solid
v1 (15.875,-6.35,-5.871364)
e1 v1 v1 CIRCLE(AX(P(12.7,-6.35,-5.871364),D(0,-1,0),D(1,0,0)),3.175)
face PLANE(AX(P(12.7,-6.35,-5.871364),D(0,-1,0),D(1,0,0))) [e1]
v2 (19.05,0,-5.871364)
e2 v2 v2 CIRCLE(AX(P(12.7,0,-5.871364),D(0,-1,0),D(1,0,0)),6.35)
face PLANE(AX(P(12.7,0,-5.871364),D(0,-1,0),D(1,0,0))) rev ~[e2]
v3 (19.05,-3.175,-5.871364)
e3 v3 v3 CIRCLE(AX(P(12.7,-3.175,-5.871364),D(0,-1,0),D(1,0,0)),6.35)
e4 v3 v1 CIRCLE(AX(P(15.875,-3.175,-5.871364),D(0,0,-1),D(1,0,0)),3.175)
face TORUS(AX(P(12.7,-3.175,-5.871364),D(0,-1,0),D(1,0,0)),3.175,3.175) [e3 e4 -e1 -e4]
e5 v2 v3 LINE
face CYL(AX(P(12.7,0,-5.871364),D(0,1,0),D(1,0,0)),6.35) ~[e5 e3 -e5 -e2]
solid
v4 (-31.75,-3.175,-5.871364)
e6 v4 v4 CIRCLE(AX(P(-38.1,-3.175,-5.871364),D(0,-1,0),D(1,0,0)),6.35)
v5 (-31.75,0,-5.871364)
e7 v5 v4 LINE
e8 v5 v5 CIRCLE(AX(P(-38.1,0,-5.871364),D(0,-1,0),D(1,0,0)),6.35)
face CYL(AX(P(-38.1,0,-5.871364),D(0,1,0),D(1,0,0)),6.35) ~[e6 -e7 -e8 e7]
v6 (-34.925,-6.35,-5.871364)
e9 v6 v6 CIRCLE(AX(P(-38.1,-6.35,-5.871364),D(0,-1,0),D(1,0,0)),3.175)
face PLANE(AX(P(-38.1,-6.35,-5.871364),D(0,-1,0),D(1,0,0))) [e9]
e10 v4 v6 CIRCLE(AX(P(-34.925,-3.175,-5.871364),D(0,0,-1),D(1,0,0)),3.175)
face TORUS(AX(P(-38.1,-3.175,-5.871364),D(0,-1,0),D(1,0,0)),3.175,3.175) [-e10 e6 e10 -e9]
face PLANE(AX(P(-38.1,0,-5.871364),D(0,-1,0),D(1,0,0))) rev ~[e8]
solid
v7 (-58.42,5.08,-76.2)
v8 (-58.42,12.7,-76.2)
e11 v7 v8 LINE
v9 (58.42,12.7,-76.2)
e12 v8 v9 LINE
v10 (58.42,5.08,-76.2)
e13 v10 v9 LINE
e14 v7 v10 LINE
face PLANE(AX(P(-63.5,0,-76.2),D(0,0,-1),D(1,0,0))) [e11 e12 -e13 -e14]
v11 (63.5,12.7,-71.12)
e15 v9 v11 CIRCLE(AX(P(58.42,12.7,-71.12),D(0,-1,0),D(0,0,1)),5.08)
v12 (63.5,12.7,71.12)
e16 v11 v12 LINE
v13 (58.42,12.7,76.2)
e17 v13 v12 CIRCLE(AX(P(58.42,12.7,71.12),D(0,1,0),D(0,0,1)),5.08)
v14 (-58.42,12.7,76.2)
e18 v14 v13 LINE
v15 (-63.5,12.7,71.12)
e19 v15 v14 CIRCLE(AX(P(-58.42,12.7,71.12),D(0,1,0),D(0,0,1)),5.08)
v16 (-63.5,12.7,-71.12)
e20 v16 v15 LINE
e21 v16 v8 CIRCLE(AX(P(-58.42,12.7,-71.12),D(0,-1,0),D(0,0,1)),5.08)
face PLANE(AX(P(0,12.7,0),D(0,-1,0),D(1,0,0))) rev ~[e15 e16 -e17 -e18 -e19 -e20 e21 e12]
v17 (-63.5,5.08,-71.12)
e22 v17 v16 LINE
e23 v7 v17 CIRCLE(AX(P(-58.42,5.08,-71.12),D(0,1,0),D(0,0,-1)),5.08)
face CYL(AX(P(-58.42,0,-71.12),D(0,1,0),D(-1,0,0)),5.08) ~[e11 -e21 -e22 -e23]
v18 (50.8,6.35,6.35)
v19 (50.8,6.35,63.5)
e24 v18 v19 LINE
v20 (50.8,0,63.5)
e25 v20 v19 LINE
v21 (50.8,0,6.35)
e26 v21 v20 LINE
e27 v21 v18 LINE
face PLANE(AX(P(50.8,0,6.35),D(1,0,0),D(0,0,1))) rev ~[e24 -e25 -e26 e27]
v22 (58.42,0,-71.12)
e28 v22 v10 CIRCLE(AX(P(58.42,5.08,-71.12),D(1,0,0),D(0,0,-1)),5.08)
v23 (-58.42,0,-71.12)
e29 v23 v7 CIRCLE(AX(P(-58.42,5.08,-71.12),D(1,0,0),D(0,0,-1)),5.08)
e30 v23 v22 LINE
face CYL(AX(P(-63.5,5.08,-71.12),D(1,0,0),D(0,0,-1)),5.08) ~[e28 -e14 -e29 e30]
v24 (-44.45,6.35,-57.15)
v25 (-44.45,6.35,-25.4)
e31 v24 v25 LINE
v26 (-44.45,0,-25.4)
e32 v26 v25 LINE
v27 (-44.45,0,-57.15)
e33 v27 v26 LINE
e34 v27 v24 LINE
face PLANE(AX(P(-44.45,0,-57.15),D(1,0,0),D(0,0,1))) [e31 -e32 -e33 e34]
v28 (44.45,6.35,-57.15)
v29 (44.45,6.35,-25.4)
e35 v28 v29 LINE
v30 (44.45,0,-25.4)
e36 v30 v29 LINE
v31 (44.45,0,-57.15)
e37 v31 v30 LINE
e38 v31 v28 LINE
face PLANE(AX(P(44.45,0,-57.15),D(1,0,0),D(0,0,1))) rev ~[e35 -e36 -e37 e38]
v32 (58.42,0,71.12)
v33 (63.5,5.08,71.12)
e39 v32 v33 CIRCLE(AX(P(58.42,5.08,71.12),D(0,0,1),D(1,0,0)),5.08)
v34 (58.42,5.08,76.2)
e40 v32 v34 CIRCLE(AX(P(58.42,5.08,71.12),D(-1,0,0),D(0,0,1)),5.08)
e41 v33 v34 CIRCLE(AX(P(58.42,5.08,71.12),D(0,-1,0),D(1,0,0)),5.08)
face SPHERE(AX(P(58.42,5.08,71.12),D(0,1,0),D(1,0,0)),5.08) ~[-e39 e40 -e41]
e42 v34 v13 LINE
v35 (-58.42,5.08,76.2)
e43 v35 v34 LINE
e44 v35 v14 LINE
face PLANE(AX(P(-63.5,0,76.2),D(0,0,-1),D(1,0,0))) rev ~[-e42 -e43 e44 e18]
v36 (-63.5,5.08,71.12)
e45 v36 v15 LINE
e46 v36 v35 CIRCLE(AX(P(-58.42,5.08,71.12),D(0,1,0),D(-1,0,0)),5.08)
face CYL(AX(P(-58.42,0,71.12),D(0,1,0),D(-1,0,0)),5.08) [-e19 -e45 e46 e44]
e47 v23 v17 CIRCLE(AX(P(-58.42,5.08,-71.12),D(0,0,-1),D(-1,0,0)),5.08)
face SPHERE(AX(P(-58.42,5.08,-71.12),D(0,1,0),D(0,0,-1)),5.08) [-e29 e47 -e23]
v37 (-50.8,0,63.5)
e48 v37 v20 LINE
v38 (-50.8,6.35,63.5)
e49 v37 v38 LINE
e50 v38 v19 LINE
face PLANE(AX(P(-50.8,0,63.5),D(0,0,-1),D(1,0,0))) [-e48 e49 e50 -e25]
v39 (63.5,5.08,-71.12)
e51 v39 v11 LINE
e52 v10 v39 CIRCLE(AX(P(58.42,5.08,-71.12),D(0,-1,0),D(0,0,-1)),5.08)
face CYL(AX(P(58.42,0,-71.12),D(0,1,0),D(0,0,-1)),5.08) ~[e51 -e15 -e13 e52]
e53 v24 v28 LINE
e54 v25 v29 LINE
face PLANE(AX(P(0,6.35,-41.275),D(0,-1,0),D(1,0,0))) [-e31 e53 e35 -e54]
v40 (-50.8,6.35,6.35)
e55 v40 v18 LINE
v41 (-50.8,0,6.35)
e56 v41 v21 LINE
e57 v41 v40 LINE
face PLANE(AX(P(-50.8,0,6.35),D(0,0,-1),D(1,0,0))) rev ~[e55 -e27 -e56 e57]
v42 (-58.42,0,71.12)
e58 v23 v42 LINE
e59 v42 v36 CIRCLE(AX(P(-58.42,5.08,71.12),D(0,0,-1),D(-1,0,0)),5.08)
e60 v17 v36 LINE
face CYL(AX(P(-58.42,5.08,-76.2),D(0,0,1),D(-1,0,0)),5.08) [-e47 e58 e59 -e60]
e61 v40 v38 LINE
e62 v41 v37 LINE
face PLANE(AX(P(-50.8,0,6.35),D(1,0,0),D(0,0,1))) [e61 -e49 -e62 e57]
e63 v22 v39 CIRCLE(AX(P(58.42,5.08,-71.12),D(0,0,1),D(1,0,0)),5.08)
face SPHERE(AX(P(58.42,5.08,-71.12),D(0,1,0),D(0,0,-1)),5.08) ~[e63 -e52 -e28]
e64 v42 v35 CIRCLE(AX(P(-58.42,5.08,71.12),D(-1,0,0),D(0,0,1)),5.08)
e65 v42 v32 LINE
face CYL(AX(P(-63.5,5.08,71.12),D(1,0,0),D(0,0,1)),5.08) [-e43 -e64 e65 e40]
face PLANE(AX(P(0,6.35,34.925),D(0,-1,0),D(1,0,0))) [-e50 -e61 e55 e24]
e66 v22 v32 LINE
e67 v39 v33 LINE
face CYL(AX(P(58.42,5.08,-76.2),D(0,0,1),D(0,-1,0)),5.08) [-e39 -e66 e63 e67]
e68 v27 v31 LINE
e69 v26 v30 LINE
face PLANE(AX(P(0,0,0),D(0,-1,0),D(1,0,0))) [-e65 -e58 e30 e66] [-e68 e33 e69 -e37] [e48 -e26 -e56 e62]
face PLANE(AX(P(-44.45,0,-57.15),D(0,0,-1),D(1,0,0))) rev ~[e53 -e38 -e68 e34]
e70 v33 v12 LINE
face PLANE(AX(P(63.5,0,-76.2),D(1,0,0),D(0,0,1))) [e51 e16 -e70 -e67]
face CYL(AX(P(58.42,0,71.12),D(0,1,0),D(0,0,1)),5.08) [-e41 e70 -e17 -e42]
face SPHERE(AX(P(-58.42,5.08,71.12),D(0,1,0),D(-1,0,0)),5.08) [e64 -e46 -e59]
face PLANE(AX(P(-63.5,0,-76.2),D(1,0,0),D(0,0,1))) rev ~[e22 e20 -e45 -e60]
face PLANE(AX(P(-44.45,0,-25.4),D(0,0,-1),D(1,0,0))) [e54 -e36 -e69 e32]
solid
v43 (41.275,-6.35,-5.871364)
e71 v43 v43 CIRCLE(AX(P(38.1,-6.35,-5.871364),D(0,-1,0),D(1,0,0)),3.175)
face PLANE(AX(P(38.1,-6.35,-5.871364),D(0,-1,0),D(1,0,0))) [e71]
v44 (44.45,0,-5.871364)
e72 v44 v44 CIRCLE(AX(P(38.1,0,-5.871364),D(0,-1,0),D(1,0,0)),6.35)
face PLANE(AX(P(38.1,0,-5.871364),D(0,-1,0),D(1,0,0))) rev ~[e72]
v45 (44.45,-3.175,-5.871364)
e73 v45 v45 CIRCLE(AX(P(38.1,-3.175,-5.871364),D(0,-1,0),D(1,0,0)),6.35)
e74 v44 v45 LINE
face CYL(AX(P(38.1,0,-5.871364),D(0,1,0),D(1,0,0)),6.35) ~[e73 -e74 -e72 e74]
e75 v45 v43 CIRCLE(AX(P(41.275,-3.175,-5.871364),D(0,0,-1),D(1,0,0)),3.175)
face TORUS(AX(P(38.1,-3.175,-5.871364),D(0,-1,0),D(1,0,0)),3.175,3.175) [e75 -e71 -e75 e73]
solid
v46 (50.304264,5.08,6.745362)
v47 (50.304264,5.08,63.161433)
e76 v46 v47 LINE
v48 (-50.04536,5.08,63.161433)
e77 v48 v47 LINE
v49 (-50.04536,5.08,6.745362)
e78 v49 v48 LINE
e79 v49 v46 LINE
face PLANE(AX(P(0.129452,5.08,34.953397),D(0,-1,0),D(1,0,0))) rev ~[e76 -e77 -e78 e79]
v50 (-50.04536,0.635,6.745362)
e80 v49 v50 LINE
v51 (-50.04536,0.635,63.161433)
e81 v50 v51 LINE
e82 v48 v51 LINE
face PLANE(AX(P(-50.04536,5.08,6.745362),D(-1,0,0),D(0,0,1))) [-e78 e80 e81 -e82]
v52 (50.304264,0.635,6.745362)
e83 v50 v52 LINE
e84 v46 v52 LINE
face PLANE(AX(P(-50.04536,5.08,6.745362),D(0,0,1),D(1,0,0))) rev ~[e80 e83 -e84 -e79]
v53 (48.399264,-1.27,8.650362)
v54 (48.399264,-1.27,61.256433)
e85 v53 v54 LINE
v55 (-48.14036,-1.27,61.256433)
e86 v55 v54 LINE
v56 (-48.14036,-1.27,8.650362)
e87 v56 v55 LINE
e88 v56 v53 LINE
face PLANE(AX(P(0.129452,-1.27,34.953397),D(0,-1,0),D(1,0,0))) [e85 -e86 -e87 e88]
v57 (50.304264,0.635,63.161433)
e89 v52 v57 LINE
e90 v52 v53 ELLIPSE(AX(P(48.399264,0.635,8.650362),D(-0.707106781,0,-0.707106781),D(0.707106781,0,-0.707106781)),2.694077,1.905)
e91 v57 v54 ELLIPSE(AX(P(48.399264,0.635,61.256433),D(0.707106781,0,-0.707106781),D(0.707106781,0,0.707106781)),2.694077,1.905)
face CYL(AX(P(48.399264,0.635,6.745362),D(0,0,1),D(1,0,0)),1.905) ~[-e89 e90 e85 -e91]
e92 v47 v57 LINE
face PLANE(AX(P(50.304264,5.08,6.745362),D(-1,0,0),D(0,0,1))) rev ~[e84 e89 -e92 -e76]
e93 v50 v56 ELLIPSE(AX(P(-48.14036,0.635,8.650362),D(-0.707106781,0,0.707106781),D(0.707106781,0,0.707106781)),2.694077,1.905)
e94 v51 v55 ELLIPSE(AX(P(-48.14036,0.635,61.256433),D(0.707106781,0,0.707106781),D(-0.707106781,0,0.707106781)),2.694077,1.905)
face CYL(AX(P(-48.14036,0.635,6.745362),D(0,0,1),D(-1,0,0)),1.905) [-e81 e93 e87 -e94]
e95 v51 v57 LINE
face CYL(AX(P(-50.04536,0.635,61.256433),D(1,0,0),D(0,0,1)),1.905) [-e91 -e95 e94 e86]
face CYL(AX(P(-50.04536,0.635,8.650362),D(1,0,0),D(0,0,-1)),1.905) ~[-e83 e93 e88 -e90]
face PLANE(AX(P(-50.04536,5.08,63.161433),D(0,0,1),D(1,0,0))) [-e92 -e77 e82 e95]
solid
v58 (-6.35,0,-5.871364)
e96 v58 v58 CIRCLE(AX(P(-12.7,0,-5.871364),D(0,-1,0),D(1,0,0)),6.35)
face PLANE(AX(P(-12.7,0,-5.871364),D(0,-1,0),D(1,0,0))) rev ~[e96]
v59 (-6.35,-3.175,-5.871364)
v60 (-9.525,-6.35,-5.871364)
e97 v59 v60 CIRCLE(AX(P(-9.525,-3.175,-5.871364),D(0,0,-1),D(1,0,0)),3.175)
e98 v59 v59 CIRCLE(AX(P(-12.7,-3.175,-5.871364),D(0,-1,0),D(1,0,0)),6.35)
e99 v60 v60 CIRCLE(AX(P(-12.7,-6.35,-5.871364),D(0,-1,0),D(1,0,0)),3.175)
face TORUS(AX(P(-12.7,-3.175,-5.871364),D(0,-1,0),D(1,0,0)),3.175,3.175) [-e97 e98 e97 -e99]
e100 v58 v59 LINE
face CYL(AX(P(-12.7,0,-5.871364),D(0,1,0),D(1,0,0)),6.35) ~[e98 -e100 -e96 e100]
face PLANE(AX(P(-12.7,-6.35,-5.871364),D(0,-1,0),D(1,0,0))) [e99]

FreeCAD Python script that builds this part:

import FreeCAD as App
import Part
import Sketcher
from FreeCAD import Vector
Q = App.Units.Quantity


def edges_at(feature, points):
    """Names of the edges that pass closest to the given points."""
    edges = feature.Shape.Edges
    near = lambda p: min(range(len(edges)), key=lambda i: edges[i].distToShape(Part.Vertex(*p))[0])
    return sorted({f"Edge{near(p) + 1}" for p in points})


def add_polygon(sketch, points):
    """Adds a closed chain of lines whose ends are joined by coincident constraints."""
    first, n = sketch.GeometryCount, len(points)
    for a, b in zip(points, points[1:] + points[:1]):
        sketch.addGeometry(Part.LineSegment(App.Vector(*a, 0), App.Vector(*b, 0)), False)
    for i in range(n):
        sketch.addConstraint(Sketcher.Constraint("Coincident", first + i, 2, first + (i + 1) % n, 1))

doc = App.newDocument("Part")
body = doc.addObject("PartDesign::Body", "Body")

# Sketch on XZ plane
sketch1 = body.newObject("Sketcher::SketchObject", "Sketch")
sketch1.AttachmentSupport = (doc.getObject("XZ_Plane"), [""])
sketch1.MapMode = "FlatFace"
add_polygon(sketch1, [(-64, 76), (-64, -76), (64, -76), (64, 76)])  # lines 0-3
sketch1.addConstraint(Sketcher.Constraint("Vertical", 0))
sketch1.addConstraint(Sketcher.Constraint("Horizontal", 1))
sketch1.addConstraint(Sketcher.Constraint("Vertical", 2))
sketch1.addConstraint(Sketcher.Constraint("Horizontal", 3))
sketch1.addConstraint(Sketcher.Constraint("Symmetric", 0, 2, 2, 2, -1, 1))
sketch1.addConstraint(Sketcher.Constraint("DistanceX", 1, 1, 1, 2, Q("5 in")))
sketch1.addConstraint(Sketcher.Constraint("DistanceY", 0, 2, 0, 1, Q("6 in")))
pad1 = body.newObject("PartDesign::Pad", "Pad")
pad1.Profile = sketch1
pad1.Length = Q("0.5 in")
pad1.Reversed = True

# Sketch on XZ plane
sketch2 = body.newObject("Sketcher::SketchObject", "Sketch001")
sketch2.AttachmentSupport = (doc.getObject("XZ_Plane"), [""])
sketch2.MapMode = "FlatFace"
add_polygon(sketch2, [(-51, 64), (-51, 6), (51, 6), (51, 64)])  # lines 0-3
add_polygon(sketch2, [(-44, -25), (-44, -57), (44, -57), (44, -25)])  # lines 4-7
sketch2.addConstraint(Sketcher.Constraint("Vertical", 0))
sketch2.addConstraint(Sketcher.Constraint("Horizontal", 1))
sketch2.addConstraint(Sketcher.Constraint("Vertical", 2))
sketch2.addConstraint(Sketcher.Constraint("Horizontal", 3))
sketch2.addConstraint(Sketcher.Constraint("Vertical", 4))
sketch2.addConstraint(Sketcher.Constraint("Horizontal", 5))
sketch2.addConstraint(Sketcher.Constraint("Vertical", 6))
sketch2.addConstraint(Sketcher.Constraint("Horizontal", 7))
sketch2.addConstraint(Sketcher.Constraint("DistanceX", 1, 1, 1, 2, Q("4 in")))
sketch2.addConstraint(Sketcher.Constraint("DistanceX", 5, 1, 5, 2, Q("3.5 in")))
sketch2.addConstraint(Sketcher.Constraint("DistanceX", 0, 2, -1, 1, Q("2 in")))
sketch2.addConstraint(Sketcher.Constraint("DistanceY", 6, 2, -1, 1, Q("1 in")))
sketch2.addConstraint(Sketcher.Constraint("DistanceY", 0, 2, 0, 1, Q("2.25 in")))
sketch2.addConstraint(Sketcher.Constraint("DistanceY", 4, 2, 4, 1, Q("1.25 in")))
sketch2.addConstraint(Sketcher.Constraint("DistanceY", -1, 1, 2, 2, Q("2.5 in")))
sketch2.addConstraint(Sketcher.Constraint("DistanceX", 4, 2, -1, 1, Q("1.75 in")))
pocket1 = body.newObject("PartDesign::Pocket", "Pocket")
pocket1.Profile = sketch2
pocket1.Length = Q("0.25 in")
doc.recompute()

fillet = body.newObject("PartDesign::Fillet", "Fillet")
fillet.Base = (pocket1, edges_at(pocket1, [
    (-63.5, 6.35, 76.2),
    (63.5, 6.35, 76.2),
    (63.5, 6.35, -76.2),
    (-63.5, 6.35, -76.2),
    (0, 0, -76.2),
    (-63.5, 0, 0),
    (63.5, 0, 0),
    (0, 0, 76.2),
]))
fillet.Radius = Q("0.2 in")
body2 = doc.addObject("PartDesign::Body", "Body001")

# Sketch on XZ plane
sketch3 = body2.newObject("Sketcher::SketchObject", "Sketch002")
sketch3.AttachmentSupport = (doc.getObject("XZ_Plane001"), [""])
sketch3.MapMode = "FlatFace"
sketch3.addGeometry(Part.Circle(Vector(-38, -6, 0), Vector(0, 0, 1), 6), False)
sketch3.addConstraint(Sketcher.Constraint("Diameter", 0, Q("0.5 in")))
sketch3.addConstraint(Sketcher.Constraint("DistanceX", 0, 3, -1, 1, Q("1.5 in")))
sketch3.addConstraint(Sketcher.Constraint("DistanceY", 0, 3, -1, 1, Q("5.871364 mm")))
pad2 = body2.newObject("PartDesign::Pad", "Pad001")
pad2.Profile = sketch3
pad2.Length = Q("0.25 in")
doc.recompute()

fillet2 = body2.newObject("PartDesign::Fillet", "Fillet001")
fillet2.Base = (pad2, edges_at(pad2, [(-44.45, -6.35, -5.871)]))
fillet2.Radius = Q("0.125 in")
body3 = doc.addObject("PartDesign::Body", "Body002")

# Sketch on XZ plane
sketch4 = body3.newObject("Sketcher::SketchObject", "Sketch003")
sketch4.AttachmentSupport = (doc.getObject("XZ_Plane002"), [""])
sketch4.MapMode = "FlatFace"
sketch4.addGeometry(Part.Circle(Vector(-13, -6, 0), Vector(0, 0, 1), 6), False)
sketch4.addConstraint(Sketcher.Constraint("Diameter", 0, Q("0.5 in")))
sketch4.addConstraint(Sketcher.Constraint("DistanceX", 0, 3, -1, 1, Q("0.5 in")))
sketch4.addConstraint(Sketcher.Constraint("DistanceY", 0, 3, -1, 1, Q("5.871364 mm")))
pad3 = body3.newObject("PartDesign::Pad", "Pad002")
pad3.Profile = sketch4
pad3.Length = Q("0.25 in")
doc.recompute()

fillet3 = body3.newObject("PartDesign::Fillet", "Fillet002")
fillet3.Base = (pad3, edges_at(pad3, [(-19.05, -6.35, -5.871)]))
fillet3.Radius = Q("0.125 in")
body4 = doc.addObject("PartDesign::Body", "Body003")

# Sketch on XZ plane
sketch5 = body4.newObject("Sketcher::SketchObject", "Sketch004")
sketch5.AttachmentSupport = (doc.getObject("XZ_Plane003"), [""])
sketch5.MapMode = "FlatFace"
sketch5.addGeometry(Part.Circle(Vector(13, -6, 0), Vector(0, 0, 1), 6), False)
sketch5.addConstraint(Sketcher.Constraint("Diameter", 0, Q("0.5 in")))
sketch5.addConstraint(Sketcher.Constraint("DistanceX", -1, 1, 0, 3, Q("0.5 in")))
sketch5.addConstraint(Sketcher.Constraint("DistanceY", 0, 3, -1, 1, Q("5.871364 mm")))
pad4 = body4.newObject("PartDesign::Pad", "Pad003")
pad4.Profile = sketch5
pad4.Length = Q("0.25 in")
doc.recompute()

fillet4 = body4.newObject("PartDesign::Fillet", "Fillet003")
fillet4.Base = (pad4, edges_at(pad4, [(6.35, -6.35, -5.871)]))
fillet4.Radius = Q("0.125 in")
body5 = doc.addObject("PartDesign::Body", "Body004")

# Sketch on XZ plane
sketch6 = body5.newObject("Sketcher::SketchObject", "Sketch005")
sketch6.AttachmentSupport = (doc.getObject("XZ_Plane004"), [""])
sketch6.MapMode = "FlatFace"
sketch6.addGeometry(Part.Circle(Vector(38, -6, 0), Vector(0, 0, 1), 6), False)
sketch6.addConstraint(Sketcher.Constraint("Diameter", 0, Q("0.5 in")))
sketch6.addConstraint(Sketcher.Constraint("DistanceX", -1, 1, 0, 3, Q("1.5 in")))
sketch6.addConstraint(Sketcher.Constraint("DistanceY", 0, 3, -1, 1, Q("5.871364 mm")))
pad5 = body5.newObject("PartDesign::Pad", "Pad004")
pad5.Profile = sketch6
pad5.Length = Q("0.25 in")
doc.recompute()

fillet5 = body5.newObject("PartDesign::Fillet", "Fillet004")
fillet5.Base = (pad5, edges_at(pad5, [(31.75, -6.35, -5.871)]))
fillet5.Radius = Q("0.125 in")
body6 = doc.addObject("PartDesign::Body", "Body005")

# Sketch on XZ plane
sketch7 = body6.newObject("Sketcher::SketchObject", "Sketch006")
sketch7.AttachmentSupport = (doc.getObject("XZ_Plane005"), [""])
sketch7.MapMode = "FlatFace"
sketch7.AttachmentOffset = App.Placement(Vector(0, 0, -0.2 * 25.4), App.Rotation())
add_polygon(sketch7, [(-50, 63), (-50, 7), (50, 7), (50, 63)])  # lines 0-3
sketch7.addConstraint(Sketcher.Constraint("Vertical", 0))
sketch7.addConstraint(Sketcher.Constraint("Horizontal", 1))
sketch7.addConstraint(Sketcher.Constraint("Vertical", 2))
sketch7.addConstraint(Sketcher.Constraint("Horizontal", 3))
sketch7.addConstraint(Sketcher.Constraint("DistanceY", 0, 2, 0, 1, Q("56.416071 mm")))
sketch7.addConstraint(Sketcher.Constraint("DistanceX", 1, 1, 1, 2, Q("100.349624 mm")))
sketch7.addConstraint(Sketcher.Constraint("DistanceX", 0, 2, -1, 1, Q("50.04536 mm")))
sketch7.addConstraint(Sketcher.Constraint("DistanceY", -1, 1, 0, 2, Q("6.745362 mm")))
pad6 = body6.newObject("PartDesign::Pad", "Pad005")
pad6.Profile = sketch7
pad6.Length = Q("0.25 in")
doc.recompute()

fillet6 = body6.newObject("PartDesign::Fillet", "Fillet005")
fillet6.Base = (pad6, edges_at(pad6, [
    (-50.045, -1.27, 34.953),
    (0.129, -1.27, 63.161),
    (0.129, -1.27, 6.745),
    (50.304, -1.27, 34.953),
]))
fillet6.Radius = Q("0.075 in")

doc.recompute()
